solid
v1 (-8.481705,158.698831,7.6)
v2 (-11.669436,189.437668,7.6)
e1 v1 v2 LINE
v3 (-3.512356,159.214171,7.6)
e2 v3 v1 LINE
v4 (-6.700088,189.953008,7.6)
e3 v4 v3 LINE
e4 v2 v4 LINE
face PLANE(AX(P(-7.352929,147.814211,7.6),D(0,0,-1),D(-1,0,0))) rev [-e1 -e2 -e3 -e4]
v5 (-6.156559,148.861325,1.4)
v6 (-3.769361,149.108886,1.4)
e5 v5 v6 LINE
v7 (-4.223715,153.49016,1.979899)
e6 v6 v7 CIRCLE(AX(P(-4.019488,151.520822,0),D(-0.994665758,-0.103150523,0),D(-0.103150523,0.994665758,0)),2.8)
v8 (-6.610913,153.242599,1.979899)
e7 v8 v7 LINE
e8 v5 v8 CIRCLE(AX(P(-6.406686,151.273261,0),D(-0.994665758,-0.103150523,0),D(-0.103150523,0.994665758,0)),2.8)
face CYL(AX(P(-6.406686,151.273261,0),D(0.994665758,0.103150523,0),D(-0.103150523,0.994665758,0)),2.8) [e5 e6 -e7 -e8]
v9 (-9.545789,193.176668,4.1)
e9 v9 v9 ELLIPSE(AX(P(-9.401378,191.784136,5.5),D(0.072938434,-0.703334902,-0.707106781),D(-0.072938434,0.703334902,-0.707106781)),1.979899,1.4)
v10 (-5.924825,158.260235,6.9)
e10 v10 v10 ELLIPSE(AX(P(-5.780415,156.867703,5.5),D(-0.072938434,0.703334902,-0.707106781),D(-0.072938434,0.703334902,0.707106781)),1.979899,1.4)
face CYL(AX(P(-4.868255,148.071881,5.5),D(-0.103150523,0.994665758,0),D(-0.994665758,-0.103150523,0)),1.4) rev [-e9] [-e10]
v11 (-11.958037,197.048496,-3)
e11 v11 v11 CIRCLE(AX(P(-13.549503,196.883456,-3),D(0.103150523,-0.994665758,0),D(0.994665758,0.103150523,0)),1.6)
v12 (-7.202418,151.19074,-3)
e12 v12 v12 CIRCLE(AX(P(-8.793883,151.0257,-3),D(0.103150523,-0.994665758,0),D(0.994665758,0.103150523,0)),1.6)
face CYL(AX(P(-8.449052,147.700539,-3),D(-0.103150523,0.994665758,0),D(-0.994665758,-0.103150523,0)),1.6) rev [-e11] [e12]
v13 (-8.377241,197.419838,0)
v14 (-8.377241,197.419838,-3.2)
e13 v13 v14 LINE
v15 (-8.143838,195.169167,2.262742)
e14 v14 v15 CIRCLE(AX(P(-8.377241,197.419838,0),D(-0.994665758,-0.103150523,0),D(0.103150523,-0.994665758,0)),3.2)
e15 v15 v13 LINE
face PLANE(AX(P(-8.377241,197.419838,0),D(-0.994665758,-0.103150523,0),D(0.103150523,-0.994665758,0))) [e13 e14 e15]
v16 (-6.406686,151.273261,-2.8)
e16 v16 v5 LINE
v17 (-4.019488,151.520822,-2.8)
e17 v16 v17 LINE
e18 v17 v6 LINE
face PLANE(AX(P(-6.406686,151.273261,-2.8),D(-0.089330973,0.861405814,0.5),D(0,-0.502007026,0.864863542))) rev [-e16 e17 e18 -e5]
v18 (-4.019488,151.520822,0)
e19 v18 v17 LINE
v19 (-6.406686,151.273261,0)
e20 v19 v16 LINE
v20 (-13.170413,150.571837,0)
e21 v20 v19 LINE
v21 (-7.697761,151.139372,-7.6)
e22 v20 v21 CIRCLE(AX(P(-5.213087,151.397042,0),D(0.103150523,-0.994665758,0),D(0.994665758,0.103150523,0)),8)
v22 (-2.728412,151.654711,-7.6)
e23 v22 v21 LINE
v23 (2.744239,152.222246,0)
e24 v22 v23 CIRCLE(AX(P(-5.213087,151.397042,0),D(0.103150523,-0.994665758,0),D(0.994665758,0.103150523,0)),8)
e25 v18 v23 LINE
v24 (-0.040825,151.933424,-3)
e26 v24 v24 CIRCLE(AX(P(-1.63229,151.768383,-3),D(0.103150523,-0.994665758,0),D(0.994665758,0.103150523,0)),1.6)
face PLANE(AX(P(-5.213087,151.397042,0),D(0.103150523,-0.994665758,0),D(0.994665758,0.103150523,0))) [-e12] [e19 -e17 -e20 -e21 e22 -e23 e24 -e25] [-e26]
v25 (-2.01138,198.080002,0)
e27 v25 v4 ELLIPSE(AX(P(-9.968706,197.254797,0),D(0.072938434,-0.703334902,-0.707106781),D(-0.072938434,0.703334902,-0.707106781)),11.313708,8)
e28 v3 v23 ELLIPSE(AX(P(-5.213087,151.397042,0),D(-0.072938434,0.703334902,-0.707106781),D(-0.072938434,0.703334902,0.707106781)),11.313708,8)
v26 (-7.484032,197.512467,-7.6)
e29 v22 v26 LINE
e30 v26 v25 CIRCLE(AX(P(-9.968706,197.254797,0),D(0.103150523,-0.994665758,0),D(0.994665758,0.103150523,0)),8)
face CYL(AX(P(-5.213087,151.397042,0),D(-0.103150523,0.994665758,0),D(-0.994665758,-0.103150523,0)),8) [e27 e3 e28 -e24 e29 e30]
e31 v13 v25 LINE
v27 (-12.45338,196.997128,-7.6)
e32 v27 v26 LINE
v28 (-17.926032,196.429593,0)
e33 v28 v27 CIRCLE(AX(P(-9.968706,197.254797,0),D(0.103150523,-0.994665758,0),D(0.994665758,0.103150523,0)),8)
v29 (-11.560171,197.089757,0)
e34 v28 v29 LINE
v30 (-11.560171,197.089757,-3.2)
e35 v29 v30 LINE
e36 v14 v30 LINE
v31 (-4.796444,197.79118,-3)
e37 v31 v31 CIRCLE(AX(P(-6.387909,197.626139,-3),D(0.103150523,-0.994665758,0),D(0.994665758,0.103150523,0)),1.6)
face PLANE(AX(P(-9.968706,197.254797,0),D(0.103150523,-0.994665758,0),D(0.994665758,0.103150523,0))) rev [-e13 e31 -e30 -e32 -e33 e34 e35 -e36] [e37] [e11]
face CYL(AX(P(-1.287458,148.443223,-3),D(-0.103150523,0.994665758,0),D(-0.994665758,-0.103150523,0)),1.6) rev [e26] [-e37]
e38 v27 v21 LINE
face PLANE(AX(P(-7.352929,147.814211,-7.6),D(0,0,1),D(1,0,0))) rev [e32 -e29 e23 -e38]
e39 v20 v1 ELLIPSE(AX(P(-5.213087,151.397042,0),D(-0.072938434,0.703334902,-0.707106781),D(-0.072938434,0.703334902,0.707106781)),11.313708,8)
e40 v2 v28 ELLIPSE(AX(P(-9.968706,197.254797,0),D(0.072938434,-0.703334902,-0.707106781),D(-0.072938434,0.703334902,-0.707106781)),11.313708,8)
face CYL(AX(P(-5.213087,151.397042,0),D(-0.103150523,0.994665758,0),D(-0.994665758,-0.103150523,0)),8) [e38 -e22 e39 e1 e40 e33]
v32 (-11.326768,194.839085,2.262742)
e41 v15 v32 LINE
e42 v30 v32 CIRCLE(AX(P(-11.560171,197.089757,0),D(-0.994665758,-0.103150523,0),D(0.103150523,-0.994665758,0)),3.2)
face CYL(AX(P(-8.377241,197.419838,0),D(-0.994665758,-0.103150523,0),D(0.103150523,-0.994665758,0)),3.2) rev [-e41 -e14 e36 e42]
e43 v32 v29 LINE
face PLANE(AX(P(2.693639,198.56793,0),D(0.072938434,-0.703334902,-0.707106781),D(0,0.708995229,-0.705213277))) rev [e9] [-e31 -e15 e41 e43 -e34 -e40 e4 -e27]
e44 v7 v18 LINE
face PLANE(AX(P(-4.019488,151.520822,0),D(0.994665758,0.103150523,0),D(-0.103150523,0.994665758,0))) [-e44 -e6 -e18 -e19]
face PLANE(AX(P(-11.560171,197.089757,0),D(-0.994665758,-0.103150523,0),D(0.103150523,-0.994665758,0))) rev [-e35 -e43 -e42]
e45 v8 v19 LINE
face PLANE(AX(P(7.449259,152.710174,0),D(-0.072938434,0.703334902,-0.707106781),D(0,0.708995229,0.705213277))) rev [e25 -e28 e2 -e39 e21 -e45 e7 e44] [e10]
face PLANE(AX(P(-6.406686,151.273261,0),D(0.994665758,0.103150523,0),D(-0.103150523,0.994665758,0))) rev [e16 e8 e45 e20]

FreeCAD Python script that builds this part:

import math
import FreeCAD as App
import Part
import Sketcher
Q = App.Units.Quantity


def add_polygon(sketch, points):
    """Adds a closed chain of lines whose ends are joined by coincident constraints."""
    first, n = sketch.GeometryCount, len(points)
    for a, b in zip(points, points[1:] + points[:1]):
        sketch.addGeometry(Part.LineSegment(App.Vector(*a, 0), App.Vector(*b, 0)), False)
    for i in range(n):
        sketch.addConstraint(Sketcher.Constraint("Coincident", first + i, 2, first + (i + 1) % n, 1))

doc = App.newDocument("Part")
body = doc.addObject("PartDesign::Body", "Body")

sketch1 = doc.addObject("Sketcher::SketchObject", "Sketch")
body.addObject(sketch1)
sketch1.Placement = App.Placement(App.Vector(-20.344467, 196.178793, 0), App.Rotation(App.Vector(-0.994665758, -0.103150523, 0), App.Vector(0, 0, -1.000000001), App.Vector(0.103150523, -0.994665758, 0), "ZXY"))
sketch1.addGeometry(Part.Circle(App.Vector(-10, 0, 0), App.Vector(0, 0, 1), 8), False)
sketch1.addConstraint([
    Sketcher.Constraint("PointOnObject", 0, 3, -1),
    Sketcher.Constraint("Diameter", 0, Q("16 mm")),
    Sketcher.Constraint("DistanceX", 0, 3, -1, 1, Q("10.431405 mm")),
])
pad1 = doc.addObject("PartDesign::Pad", "Pad")
body.addObject(pad1)
pad1.Profile = sketch1
pad1.Length = 46.103684

sketch2 = doc.addObject("Sketcher::SketchObject", "Sketch001")
body.addObject(sketch2)
sketch2.Placement = App.Placement(App.Vector(10.375762, 1.076005, 0), App.Rotation(App.Vector(0.103150523, -0.994665758, 0), App.Vector(0, 0, 1.000000001), App.Vector(-0.994665758, -0.103150523, 0), "ZXY"))
add_polygon(sketch2, [(-197, 0), (-189, 8), (-197, 8)])
add_polygon(sketch2, [(-151, 8), (-159, 8), (-151, 0)])
sketch2.addConstraint([
    Sketcher.Constraint("Horizontal", 1),
    Sketcher.Constraint("Vertical", 2),
    Sketcher.Constraint("Horizontal", 3),
    Sketcher.Constraint("Vertical", 5),
    Sketcher.Constraint("PointOnObject", 2, 2, -1),
    Sketcher.Constraint("PointOnObject", 4, 2, -1),
    Sketcher.Constraint("Perpendicular", 0, 4),
    Sketcher.Constraint("Horizontal", 1, 2, 3, 2),
    Sketcher.Constraint("Equal", 1, 3),
    Sketcher.Constraint("DistanceX", 1, 2, 1, 1, Q("8 mm")),
    Sketcher.Constraint("DistanceX", 0, 2, -1, 1, Q("189.23087 mm")),
    Sketcher.Constraint("DistanceX", 3, 2, -1, 1, Q("159.127186 mm")),
])
pocket1 = doc.addObject("PartDesign::Pocket", "Pocket")
body.addObject(pocket1)
pocket1.Profile = sketch2
pocket1.Type = "ThroughAll"
pocket1.Midplane = True

sketch3 = doc.addObject("Sketcher::SketchObject", "Sketch002")
body.addObject(sketch3)
sketch3.Placement = App.Placement(App.Vector(10.375762, 1.076005, 0), App.Rotation(App.Vector(0.103150523, -0.994665758, 0), App.Vector(0, 0, 1.000000001), App.Vector(-0.994665758, -0.103150523, 0), "ZXY"))
sketch3.addGeometry([
    Part.LineSegment(App.Vector(-151.1, -2.8, 0), App.Vector(-148.7, 1.4, 0)),
    Part.ArcOfCircle(Part.Circle(App.Vector(-151.1, 0, 0), App.Vector(0, 0, 1), 2.8), math.radians(30), math.radians(135)),
    Part.LineSegment(App.Vector(-153.1, 2, 0), App.Vector(-151.1, 0, 0)),
    Part.LineSegment(App.Vector(-151.1, 0, 0), App.Vector(-151.1, -2.8, 0)),
], False)
sketch3.addConstraint([
    Sketcher.Constraint("Coincident", 0, 2, 1, 1),
    Sketcher.Constraint("Coincident", 1, 2, 2, 1),
    Sketcher.Constraint("Coincident", 2, 2, 3, 1),
    Sketcher.Constraint("Coincident", 3, 2, 0, 1),
    Sketcher.Constraint("Vertical", 3),
    Sketcher.Constraint("Coincident", 2, 2, 1, 3),
    Sketcher.Constraint("PointOnObject", 1, 3, -1),
    Sketcher.Constraint("Radius", 1, Q("2.8 mm")),
    Sketcher.Constraint("Angle", 0, Q("60 deg")),
    Sketcher.Constraint("Angle", 2, Q("-45 deg")),
    Sketcher.Constraint("DistanceY", 3, 2, 3, 1, Q("2.8 mm")),
    Sketcher.Constraint("DistanceX", 1, 3, -1, 1, Q("151.127186 mm")),
])
pad2 = doc.addObject("PartDesign::Pad", "Pad001")
body.addObject(pad2)
pad2.Profile = sketch3
pad2.Length = 2.4
pad2.Midplane = True

sketch4 = doc.addObject("Sketcher::SketchObject", "Sketch003")
body.addObject(sketch4)
sketch4.Placement = App.Placement(App.Vector(10.375762, 1.076005, 0), App.Rotation(App.Vector(0.103150523, -0.994665758, 0), App.Vector(0, 0, 1.000000001), App.Vector(-0.994665758, -0.103150523, 0), "ZXY"))
sketch4.addGeometry([
    Part.LineSegment(App.Vector(-195, 2.3, 0), App.Vector(-197.2, 0, 0)),
    Part.LineSegment(App.Vector(-197.2, 0, 0), App.Vector(-197.2, -3.2, 0)),
    Part.ArcOfCircle(Part.Circle(App.Vector(-197.2, 0, 0), App.Vector(0, 0, 1), 3.2), math.radians(-90), math.radians(45)),
], False)
sketch4.addConstraint([
    Sketcher.Constraint("Coincident", 0, 2, 1, 1),
    Sketcher.Constraint("Coincident", 1, 2, 2, 1),
    Sketcher.Constraint("Coincident", 2, 2, 0, 1),
    Sketcher.Constraint("Vertical", 1),
    Sketcher.Constraint("Coincident", 0, 2, 2, 3),
    Sketcher.Constraint("PointOnObject", 2, 3, -1),
    Sketcher.Constraint("Radius", 2, Q("3.2 mm")),
    Sketcher.Constraint("Angle", 0, Q("-135 deg")),
    Sketcher.Constraint("DistanceX", 2, 3, -1, 1, Q("197.23087 mm")),
])
pocket2 = doc.addObject("PartDesign::Pocket", "Pocket001")
body.addObject(pocket2)
pocket2.Profile = sketch4
pocket2.Length = 3.2
pocket2.Midplane = True

sketch5 = doc.addObject("Sketcher::SketchObject", "Sketch004")
body.addObject(sketch5)
sketch5.Placement = App.Placement(App.Vector(-20.344467, 196.178793, 0), App.Rotation(App.Vector(0.994665758, 0.103150523, 0), App.Vector(0, 0, -1.000000001), App.Vector(-0.103150523, 0.994665758, 0), "ZXY"))
sketch5.addGeometry([
    Part.Circle(App.Vector(10.4, -5.5, 0), App.Vector(0, 0, 1), 1.4),
    Part.Circle(App.Vector(6.8, 3, 0), App.Vector(0, 0, 1), 1.6),
    Part.Circle(App.Vector(14, 3, 0), App.Vector(0, 0, 1), 1.6),
], False)
sketch5.addConstraint([
    Sketcher.Constraint("Equal", 1, 2),
    Sketcher.Constraint("Horizontal", 1, 3, 2, 3),
    Sketcher.Constraint("Diameter", 0, Q("2.8 mm")),
    Sketcher.Constraint("Diameter", 1, Q("3.2 mm")),
    Sketcher.Constraint("DistanceY", -1, 1, 1, 3, Q("3 mm")),
    Sketcher.Constraint("DistanceY", 0, 3, -1, 1, Q("5.5 mm")),
    Sketcher.Constraint("DistanceX", 1, 3, 0, 3, Q("3.6 mm")),
    Sketcher.Constraint("DistanceX", 1, 3, 2, 3, Q("7.2 mm")),
    Sketcher.Constraint("DistanceX", -1, 1, 0, 3, Q("10.431405 mm")),
])
pocket3 = doc.addObject("PartDesign::Pocket", "Pocket002")
body.addObject(pocket3)
pocket3.Profile = sketch5
pocket3.Type = "ThroughAll"
pocket3.Midplane = True

sketch6 = doc.addObject("Sketcher::SketchObject", "Sketch005")
body.addObject(sketch6)
sketch6.Placement = App.Placement(App.Vector(-20.344467, 196.178793, 0), App.Rotation(App.Vector(0.994665758, 0.103150523, 0), App.Vector(0, 0, -1.000000001), App.Vector(-0.103150523, 0.994665758, 0), "ZXY"))
sketch6.addGeometry([
    Part.LineSegment(App.Vector(7.9, 7.6, 0), App.Vector(12.9, 7.6, 0)),
    Part.ArcOfCircle(Part.Circle(App.Vector(10.4, 0, 0), App.Vector(0, 0, 1), 8), math.radians(72), math.radians(108)),
    Part.LineSegment(App.Vector(12.9, -7.6, 0), App.Vector(7.9, -7.6, 0)),
    Part.ArcOfCircle(Part.Circle(App.Vector(10.4, 0, 0), App.Vector(0, 0, 1), 8), math.radians(-108), math.radians(-72)),
], False)
sketch6.addConstraint([
    Sketcher.Constraint("Coincident", 0, 1, 1, 2),
    Sketcher.Constraint("Coincident", 1, 1, 0, 2),
    Sketcher.Constraint("Coincident", 2, 1, 3, 2),
    Sketcher.Constraint("Coincident", 3, 1, 2, 2),
    Sketcher.Constraint("Horizontal", 0),
    Sketcher.Constraint("Horizontal", 2),
    Sketcher.Constraint("Coincident", 3, 3, 1, 3),
    Sketcher.Constraint("Equal", 1, 3),
    Sketcher.Constraint("Symmetric", 1, 1, 2, 1, -1),
    Sketcher.Constraint("Radius", 1, Q("8 mm")),
    Sketcher.Constraint("DistanceY", -1, 1, 0, 1, Q("7.6 mm")),
    Sketcher.Constraint("DistanceX", -1, 1, 1, 3, Q("10.431405 mm")),
])
pocket4 = doc.addObject("PartDesign::Pocket", "Pocket003")
body.addObject(pocket4)
pocket4.Profile = sketch6
pocket4.Type = "ThroughAll"

doc.recompute()
